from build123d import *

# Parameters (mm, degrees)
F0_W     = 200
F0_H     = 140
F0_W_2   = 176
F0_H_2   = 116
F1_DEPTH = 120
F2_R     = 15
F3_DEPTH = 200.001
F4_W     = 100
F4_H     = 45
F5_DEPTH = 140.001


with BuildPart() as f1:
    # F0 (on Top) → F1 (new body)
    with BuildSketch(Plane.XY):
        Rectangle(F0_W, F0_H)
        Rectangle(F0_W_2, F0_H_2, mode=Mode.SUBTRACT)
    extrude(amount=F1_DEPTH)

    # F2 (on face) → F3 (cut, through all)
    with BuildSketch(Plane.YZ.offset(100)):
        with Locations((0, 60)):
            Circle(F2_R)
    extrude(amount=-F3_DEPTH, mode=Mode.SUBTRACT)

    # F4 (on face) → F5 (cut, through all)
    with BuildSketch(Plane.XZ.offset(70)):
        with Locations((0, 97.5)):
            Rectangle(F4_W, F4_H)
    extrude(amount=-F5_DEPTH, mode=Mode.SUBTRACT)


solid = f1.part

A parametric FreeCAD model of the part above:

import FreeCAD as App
import Part
import Sketcher

V = App.Vector


def add_polygon(sketch, points):
    """Adds a closed chain of lines whose ends are joined by coincident constraints."""
    first, n = sketch.GeometryCount, len(points)
    for a, b in zip(points, points[1:] + points[:1]):
        sketch.addGeometry(Part.LineSegment(App.Vector(*a, 0), App.Vector(*b, 0)), False)
    for i in range(n):
        sketch.addConstraint(Sketcher.Constraint("Coincident", first + i, 2, first + (i + 1) % n, 1))

doc = App.newDocument("Part")
body = doc.addObject("PartDesign::Body", "Body")

sketch1 = body.newObject("Sketcher::SketchObject", "Sketch")
sketch1.AttachmentSupport = (doc.getObject("XY_Plane"), [""])
sketch1.MapMode = "FlatFace"
add_polygon(sketch1, [(-100, 70), (-100, -70), (100, -70), (100, 70)])
add_polygon(sketch1, [(88, -58), (-88, -58), (-88, 58), (88, 58)])
sketch1.addConstraint([
    Sketcher.Constraint("Vertical", 0),
    Sketcher.Constraint("Horizontal", 1),
    Sketcher.Constraint("Vertical", 2),
    Sketcher.Constraint("Horizontal", 3),
    Sketcher.Constraint("Horizontal", 4),
    Sketcher.Constraint("Vertical", 5),
    Sketcher.Constraint("Horizontal", 6),
    Sketcher.Constraint("Vertical", 7),
    Sketcher.Constraint("Symmetric", 0, 2, 2, 2, -1, 1),
    Sketcher.Constraint("Symmetric", 4, 2, 6, 2, -1, 1),
    Sketcher.Constraint("DistanceX", 1, 1, 1, 2, 200.0),
    Sketcher.Constraint("DistanceX", 4, 2, 4, 1, 176.0),
    Sketcher.Constraint("DistanceY", 0, 2, 0, 1, 140.0),
    Sketcher.Constraint("DistanceY", 5, 1, 5, 2, 116.0),
])
pad1 = body.newObject("PartDesign::Pad", "Pad")
pad1.Profile = sketch1
pad1.Length = 120

sketch2 = body.newObject("Sketcher::SketchObject", "Sketch001")
sketch2.AttachmentSupport = (doc.getObject("YZ_Plane"), [""])
sketch2.MapMode = "FlatFace"
sketch2.AttachmentOffset = App.Placement(V(0, 0, 100), App.Rotation())
sketch2.addGeometry(Part.Circle(V(0, 60, 0), V(0, 0, 1), 15), False)
sketch2.addConstraint([
    Sketcher.Constraint("PointOnObject", 0, 3, -2),
    Sketcher.Constraint("Diameter", 0, 30.0),
    Sketcher.Constraint("DistanceY", -1, 1, 0, 3, 60.0),
])
pocket1 = body.newObject("PartDesign::Pocket", "Pocket")
pocket1.Profile = sketch2
pocket1.Type = "ThroughAll"

sketch3 = body.newObject("Sketcher::SketchObject", "Sketch002")
sketch3.AttachmentSupport = (doc.getObject("XZ_Plane"), [""])
sketch3.MapMode = "FlatFace"
sketch3.AttachmentOffset = App.Placement(V(0, 0, 70), App.Rotation())
add_polygon(sketch3, [(-50, 120), (-50, 75), (50, 75), (50, 120)])
sketch3.addConstraint([
    Sketcher.Constraint("Vertical", 0),
    Sketcher.Constraint("Horizontal", 1),
    Sketcher.Constraint("Vertical", 2),
    Sketcher.Constraint("Horizontal", 3),
    Sketcher.Constraint("DistanceX", 1, 1, 1, 2, 100.0),
    Sketcher.Constraint("DistanceY", 0, 2, 0, 1, 45.0),
    Sketcher.Constraint("DistanceX", 0, 2, -1, 1, 50.0),
    Sketcher.Constraint("DistanceY", -1, 1, 0, 2, 75.0),
])
pocket2 = body.newObject("PartDesign::Pocket", "Pocket001")
pocket2.Profile = sketch3
pocket2.Type = "ThroughAll"

doc.recompute()
